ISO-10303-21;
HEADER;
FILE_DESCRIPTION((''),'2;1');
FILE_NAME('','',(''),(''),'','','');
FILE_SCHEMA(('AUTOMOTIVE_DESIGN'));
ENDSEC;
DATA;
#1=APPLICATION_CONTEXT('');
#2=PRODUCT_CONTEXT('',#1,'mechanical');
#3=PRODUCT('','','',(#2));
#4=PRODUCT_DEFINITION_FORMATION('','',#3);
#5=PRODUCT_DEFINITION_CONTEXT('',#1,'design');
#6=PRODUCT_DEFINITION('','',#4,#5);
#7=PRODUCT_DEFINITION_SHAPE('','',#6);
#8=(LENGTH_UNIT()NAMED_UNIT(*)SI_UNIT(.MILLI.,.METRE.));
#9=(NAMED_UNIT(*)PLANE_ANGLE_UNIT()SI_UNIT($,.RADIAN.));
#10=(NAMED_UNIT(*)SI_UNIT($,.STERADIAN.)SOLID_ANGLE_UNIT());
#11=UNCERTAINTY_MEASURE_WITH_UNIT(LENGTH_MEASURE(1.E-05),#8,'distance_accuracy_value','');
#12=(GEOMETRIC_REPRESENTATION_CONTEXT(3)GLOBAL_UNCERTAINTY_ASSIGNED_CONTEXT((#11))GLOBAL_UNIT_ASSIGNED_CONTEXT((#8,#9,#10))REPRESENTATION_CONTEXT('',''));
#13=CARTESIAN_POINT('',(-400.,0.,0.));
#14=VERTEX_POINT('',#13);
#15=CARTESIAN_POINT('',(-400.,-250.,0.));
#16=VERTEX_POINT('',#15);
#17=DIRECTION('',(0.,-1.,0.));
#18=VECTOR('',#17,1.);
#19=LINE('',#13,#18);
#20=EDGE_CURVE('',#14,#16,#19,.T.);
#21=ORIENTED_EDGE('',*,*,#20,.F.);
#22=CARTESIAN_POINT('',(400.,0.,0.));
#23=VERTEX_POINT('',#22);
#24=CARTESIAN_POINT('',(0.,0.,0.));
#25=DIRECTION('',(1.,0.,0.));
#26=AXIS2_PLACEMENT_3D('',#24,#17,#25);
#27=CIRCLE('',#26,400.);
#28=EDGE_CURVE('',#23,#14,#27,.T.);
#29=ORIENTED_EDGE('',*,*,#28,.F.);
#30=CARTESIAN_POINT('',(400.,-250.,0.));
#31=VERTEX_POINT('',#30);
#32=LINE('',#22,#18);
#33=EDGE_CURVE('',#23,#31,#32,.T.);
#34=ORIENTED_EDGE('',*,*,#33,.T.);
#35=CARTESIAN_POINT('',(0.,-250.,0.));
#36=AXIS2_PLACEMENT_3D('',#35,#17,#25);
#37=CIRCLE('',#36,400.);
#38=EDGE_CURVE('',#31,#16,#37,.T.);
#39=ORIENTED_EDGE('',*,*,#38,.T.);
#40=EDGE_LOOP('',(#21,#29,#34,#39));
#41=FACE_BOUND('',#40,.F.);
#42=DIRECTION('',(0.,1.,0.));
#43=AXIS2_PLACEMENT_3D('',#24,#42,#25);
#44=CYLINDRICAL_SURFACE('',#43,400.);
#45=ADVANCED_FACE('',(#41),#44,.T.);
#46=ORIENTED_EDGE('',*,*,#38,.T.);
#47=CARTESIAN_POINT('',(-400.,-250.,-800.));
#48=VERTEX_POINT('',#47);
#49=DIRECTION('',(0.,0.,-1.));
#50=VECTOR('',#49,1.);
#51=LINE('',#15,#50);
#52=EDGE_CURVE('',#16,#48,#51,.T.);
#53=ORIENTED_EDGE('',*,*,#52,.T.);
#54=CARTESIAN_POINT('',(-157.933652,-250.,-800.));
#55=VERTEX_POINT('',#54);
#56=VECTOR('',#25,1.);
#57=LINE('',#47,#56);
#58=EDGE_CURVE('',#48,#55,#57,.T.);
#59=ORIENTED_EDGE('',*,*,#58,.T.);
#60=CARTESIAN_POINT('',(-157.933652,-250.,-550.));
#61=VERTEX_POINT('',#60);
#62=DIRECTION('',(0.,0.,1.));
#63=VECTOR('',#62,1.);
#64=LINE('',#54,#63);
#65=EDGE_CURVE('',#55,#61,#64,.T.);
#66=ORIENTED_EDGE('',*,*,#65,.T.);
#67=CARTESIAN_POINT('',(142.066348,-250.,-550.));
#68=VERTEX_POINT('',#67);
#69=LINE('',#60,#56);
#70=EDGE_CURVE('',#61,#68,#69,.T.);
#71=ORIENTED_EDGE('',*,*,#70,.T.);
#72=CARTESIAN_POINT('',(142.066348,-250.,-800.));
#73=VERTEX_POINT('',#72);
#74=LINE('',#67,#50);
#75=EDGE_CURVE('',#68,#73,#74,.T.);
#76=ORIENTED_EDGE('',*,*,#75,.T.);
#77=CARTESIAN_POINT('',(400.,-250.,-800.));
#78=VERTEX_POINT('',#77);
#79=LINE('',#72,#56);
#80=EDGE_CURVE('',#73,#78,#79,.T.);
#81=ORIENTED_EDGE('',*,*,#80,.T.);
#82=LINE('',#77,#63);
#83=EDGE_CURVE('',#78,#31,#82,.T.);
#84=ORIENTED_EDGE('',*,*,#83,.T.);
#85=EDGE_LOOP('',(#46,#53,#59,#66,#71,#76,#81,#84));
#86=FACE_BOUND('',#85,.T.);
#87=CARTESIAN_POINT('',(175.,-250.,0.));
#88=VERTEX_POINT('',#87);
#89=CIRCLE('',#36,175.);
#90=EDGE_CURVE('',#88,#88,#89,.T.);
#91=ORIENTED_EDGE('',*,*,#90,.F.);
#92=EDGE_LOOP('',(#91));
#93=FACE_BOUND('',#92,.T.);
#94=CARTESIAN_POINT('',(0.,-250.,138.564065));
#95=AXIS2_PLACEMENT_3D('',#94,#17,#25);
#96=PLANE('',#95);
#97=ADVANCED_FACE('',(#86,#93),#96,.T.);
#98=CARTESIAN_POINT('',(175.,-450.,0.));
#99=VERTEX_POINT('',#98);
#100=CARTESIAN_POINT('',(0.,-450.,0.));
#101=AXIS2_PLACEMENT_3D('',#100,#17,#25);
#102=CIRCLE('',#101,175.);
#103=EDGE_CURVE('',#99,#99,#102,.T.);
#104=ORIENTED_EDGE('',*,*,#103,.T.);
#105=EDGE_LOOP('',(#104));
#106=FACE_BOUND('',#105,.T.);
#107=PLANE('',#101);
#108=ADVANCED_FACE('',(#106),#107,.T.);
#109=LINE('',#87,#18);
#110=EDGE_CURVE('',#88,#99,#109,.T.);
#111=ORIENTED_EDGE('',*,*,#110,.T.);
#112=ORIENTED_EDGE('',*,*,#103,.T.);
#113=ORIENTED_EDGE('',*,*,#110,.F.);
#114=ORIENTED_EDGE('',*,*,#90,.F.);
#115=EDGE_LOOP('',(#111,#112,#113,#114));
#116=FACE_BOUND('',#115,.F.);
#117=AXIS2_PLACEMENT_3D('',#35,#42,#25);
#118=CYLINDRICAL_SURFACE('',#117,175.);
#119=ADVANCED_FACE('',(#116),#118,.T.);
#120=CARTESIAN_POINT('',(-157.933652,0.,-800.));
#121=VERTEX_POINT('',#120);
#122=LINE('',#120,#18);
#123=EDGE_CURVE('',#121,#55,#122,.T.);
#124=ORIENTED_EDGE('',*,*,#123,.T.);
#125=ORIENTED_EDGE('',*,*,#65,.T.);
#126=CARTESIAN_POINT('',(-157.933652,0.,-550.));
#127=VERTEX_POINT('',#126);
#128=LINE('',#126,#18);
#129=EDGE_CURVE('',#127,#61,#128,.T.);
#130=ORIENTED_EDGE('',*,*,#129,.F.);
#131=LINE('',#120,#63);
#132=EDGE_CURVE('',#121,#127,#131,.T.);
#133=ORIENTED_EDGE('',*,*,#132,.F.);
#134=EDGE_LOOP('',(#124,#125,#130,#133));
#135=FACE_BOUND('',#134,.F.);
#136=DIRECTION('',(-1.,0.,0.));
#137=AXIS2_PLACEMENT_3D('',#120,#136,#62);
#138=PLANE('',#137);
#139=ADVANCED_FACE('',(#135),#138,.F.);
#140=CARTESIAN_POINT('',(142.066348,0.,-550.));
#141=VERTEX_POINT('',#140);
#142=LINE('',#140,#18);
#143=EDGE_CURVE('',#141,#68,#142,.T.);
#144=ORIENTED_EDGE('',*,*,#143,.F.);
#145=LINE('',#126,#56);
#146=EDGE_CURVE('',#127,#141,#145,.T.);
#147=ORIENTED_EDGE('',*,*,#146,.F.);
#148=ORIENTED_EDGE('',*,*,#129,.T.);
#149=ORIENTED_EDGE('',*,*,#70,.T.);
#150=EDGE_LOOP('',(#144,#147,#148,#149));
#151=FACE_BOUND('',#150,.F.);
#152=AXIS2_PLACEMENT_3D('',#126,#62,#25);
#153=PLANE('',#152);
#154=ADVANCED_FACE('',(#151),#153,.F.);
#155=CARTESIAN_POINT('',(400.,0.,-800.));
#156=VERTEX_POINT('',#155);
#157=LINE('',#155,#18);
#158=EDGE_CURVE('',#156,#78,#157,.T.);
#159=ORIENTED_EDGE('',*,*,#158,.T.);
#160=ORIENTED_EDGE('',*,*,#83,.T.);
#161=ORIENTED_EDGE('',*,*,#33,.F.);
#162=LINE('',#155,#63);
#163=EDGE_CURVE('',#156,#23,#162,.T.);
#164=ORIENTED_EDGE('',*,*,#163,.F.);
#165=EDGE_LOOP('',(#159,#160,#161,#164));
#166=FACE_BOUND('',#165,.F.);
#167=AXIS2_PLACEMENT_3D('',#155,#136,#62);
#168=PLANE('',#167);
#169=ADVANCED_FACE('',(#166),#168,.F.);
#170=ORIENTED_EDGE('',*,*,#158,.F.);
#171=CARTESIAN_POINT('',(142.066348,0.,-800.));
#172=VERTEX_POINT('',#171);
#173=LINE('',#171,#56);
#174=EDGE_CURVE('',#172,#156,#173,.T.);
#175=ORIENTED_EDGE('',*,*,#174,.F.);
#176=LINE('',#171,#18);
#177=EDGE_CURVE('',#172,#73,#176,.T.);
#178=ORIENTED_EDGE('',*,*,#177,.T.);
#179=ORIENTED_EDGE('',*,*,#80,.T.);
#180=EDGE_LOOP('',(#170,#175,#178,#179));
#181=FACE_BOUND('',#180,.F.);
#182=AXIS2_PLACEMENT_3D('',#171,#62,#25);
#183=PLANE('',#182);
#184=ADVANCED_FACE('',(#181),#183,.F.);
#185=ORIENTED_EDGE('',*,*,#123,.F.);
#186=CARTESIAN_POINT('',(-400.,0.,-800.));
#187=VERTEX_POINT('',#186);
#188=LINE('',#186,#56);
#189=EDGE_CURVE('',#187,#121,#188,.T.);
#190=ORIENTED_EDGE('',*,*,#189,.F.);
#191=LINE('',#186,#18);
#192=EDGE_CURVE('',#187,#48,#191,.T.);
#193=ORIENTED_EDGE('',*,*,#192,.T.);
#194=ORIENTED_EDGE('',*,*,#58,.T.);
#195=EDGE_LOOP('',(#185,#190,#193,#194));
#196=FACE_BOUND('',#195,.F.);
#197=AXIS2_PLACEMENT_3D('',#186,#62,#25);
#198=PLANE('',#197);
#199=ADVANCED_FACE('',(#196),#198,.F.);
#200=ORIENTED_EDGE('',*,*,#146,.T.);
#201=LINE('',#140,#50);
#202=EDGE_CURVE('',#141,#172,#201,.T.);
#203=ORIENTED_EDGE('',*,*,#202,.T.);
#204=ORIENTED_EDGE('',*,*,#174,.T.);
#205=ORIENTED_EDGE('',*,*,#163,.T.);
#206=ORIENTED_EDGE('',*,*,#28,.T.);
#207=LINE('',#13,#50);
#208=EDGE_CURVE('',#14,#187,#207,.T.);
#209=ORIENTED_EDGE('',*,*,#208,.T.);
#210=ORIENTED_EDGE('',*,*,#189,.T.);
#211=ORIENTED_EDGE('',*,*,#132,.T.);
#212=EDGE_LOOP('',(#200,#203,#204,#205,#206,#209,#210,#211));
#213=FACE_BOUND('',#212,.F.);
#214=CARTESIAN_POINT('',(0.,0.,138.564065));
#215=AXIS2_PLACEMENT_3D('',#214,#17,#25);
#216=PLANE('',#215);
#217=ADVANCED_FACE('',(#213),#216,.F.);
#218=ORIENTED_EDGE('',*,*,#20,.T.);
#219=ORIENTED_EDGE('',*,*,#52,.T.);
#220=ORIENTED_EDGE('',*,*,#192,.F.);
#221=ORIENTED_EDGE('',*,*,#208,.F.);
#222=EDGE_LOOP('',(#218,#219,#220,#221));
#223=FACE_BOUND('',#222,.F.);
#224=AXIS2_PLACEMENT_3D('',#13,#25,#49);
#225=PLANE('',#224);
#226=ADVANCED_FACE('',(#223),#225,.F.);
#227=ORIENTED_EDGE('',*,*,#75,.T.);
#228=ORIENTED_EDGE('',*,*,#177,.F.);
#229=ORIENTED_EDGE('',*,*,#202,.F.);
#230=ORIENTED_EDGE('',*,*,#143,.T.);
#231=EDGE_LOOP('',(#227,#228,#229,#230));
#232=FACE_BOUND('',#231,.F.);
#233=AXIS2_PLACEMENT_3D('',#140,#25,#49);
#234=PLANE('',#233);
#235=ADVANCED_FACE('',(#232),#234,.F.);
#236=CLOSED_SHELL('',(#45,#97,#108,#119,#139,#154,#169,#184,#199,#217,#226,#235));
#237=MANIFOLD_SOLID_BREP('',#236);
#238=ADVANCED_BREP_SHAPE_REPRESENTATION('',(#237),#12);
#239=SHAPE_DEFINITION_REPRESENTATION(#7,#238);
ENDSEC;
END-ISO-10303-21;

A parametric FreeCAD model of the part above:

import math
import FreeCAD as App
import Part
import Sketcher
from FreeCAD import Vector

doc = App.newDocument("Part")
body = doc.addObject("PartDesign::Body", "Body")

sketch1 = body.newObject("Sketcher::SketchObject", "Sketch")
sketch1.AttachmentSupport = (doc.getObject("XZ_Plane"), [""])
sketch1.MapMode = "FlatFace"
sketch1.addGeometry([
    Part.ArcOfCircle(Part.Circle(Vector(0, 0, 0), Vector(0, 0, 1), 400), math.radians(0), math.radians(180)),
    Part.LineSegment(Vector(-400, 0, 0), Vector(-400, -800, 0)),
    Part.LineSegment(Vector(-400, -800, 0), Vector(-158, -800, 0)),
    Part.LineSegment(Vector(-158, -800, 0), Vector(-158, -550, 0)),
    Part.LineSegment(Vector(-158, -550, 0), Vector(142, -550, 0)),
    Part.LineSegment(Vector(142, -550, 0), Vector(142, -800, 0)),
    Part.LineSegment(Vector(142, -800, 0), Vector(400, -800, 0)),
    Part.LineSegment(Vector(400, -800, 0), Vector(400, 0, 0)),
], False)
sketch1.addConstraint([
    Sketcher.Constraint("Tangent", 0, 2, 1, 1),
    Sketcher.Constraint("Coincident", 1, 2, 2, 1),
    Sketcher.Constraint("Coincident", 2, 2, 3, 1),
    Sketcher.Constraint("Coincident", 3, 2, 4, 1),
    Sketcher.Constraint("Coincident", 4, 2, 5, 1),
    Sketcher.Constraint("Coincident", 5, 2, 6, 1),
    Sketcher.Constraint("Coincident", 6, 2, 7, 1),
    Sketcher.Constraint("Tangent", 7, 2, 0, 1),
    Sketcher.Constraint("Vertical", 1),
    Sketcher.Constraint("Horizontal", 2),
    Sketcher.Constraint("Vertical", 3),
    Sketcher.Constraint("Horizontal", 4),
    Sketcher.Constraint("Vertical", 5),
    Sketcher.Constraint("Horizontal", 6),
    Sketcher.Constraint("Vertical", 7),
    Sketcher.Constraint("Coincident", 0, 3, -1, 1),
    Sketcher.Constraint("Horizontal", 2, 2, 5, 2),
    Sketcher.Constraint("Radius", 0, 400.0),
    Sketcher.Constraint("DistanceX", 4, 1, 4, 2, 300.0),
    Sketcher.Constraint("DistanceY", 1, 2, 1, 1, 800.0),
    Sketcher.Constraint("DistanceY", 3, 1, 3, 2, 250.0),
    Sketcher.Constraint("DistanceX", 2, 1, 2, 2, 242.066348),
])
pad1 = body.newObject("PartDesign::Pad", "Pad")
pad1.Profile = sketch1
pad1.Length = 250

sketch2 = body.newObject("Sketcher::SketchObject", "Sketch001")
sketch2.AttachmentSupport = (doc.getObject("XZ_Plane"), [""])
sketch2.MapMode = "FlatFace"
sketch2.AttachmentOffset = App.Placement(Vector(0, 0, 250), App.Rotation())
sketch2.addGeometry(Part.Circle(Vector(0, 0, 0), Vector(0, 0, 1), 175), False)
sketch2.addConstraint([
    Sketcher.Constraint("Coincident", 0, 3, -1, 1),
    Sketcher.Constraint("Diameter", 0, 350.0),
])
pad2 = body.newObject("PartDesign::Pad", "Pad001")
pad2.Profile = sketch2
pad2.Length = 200

doc.recompute()
